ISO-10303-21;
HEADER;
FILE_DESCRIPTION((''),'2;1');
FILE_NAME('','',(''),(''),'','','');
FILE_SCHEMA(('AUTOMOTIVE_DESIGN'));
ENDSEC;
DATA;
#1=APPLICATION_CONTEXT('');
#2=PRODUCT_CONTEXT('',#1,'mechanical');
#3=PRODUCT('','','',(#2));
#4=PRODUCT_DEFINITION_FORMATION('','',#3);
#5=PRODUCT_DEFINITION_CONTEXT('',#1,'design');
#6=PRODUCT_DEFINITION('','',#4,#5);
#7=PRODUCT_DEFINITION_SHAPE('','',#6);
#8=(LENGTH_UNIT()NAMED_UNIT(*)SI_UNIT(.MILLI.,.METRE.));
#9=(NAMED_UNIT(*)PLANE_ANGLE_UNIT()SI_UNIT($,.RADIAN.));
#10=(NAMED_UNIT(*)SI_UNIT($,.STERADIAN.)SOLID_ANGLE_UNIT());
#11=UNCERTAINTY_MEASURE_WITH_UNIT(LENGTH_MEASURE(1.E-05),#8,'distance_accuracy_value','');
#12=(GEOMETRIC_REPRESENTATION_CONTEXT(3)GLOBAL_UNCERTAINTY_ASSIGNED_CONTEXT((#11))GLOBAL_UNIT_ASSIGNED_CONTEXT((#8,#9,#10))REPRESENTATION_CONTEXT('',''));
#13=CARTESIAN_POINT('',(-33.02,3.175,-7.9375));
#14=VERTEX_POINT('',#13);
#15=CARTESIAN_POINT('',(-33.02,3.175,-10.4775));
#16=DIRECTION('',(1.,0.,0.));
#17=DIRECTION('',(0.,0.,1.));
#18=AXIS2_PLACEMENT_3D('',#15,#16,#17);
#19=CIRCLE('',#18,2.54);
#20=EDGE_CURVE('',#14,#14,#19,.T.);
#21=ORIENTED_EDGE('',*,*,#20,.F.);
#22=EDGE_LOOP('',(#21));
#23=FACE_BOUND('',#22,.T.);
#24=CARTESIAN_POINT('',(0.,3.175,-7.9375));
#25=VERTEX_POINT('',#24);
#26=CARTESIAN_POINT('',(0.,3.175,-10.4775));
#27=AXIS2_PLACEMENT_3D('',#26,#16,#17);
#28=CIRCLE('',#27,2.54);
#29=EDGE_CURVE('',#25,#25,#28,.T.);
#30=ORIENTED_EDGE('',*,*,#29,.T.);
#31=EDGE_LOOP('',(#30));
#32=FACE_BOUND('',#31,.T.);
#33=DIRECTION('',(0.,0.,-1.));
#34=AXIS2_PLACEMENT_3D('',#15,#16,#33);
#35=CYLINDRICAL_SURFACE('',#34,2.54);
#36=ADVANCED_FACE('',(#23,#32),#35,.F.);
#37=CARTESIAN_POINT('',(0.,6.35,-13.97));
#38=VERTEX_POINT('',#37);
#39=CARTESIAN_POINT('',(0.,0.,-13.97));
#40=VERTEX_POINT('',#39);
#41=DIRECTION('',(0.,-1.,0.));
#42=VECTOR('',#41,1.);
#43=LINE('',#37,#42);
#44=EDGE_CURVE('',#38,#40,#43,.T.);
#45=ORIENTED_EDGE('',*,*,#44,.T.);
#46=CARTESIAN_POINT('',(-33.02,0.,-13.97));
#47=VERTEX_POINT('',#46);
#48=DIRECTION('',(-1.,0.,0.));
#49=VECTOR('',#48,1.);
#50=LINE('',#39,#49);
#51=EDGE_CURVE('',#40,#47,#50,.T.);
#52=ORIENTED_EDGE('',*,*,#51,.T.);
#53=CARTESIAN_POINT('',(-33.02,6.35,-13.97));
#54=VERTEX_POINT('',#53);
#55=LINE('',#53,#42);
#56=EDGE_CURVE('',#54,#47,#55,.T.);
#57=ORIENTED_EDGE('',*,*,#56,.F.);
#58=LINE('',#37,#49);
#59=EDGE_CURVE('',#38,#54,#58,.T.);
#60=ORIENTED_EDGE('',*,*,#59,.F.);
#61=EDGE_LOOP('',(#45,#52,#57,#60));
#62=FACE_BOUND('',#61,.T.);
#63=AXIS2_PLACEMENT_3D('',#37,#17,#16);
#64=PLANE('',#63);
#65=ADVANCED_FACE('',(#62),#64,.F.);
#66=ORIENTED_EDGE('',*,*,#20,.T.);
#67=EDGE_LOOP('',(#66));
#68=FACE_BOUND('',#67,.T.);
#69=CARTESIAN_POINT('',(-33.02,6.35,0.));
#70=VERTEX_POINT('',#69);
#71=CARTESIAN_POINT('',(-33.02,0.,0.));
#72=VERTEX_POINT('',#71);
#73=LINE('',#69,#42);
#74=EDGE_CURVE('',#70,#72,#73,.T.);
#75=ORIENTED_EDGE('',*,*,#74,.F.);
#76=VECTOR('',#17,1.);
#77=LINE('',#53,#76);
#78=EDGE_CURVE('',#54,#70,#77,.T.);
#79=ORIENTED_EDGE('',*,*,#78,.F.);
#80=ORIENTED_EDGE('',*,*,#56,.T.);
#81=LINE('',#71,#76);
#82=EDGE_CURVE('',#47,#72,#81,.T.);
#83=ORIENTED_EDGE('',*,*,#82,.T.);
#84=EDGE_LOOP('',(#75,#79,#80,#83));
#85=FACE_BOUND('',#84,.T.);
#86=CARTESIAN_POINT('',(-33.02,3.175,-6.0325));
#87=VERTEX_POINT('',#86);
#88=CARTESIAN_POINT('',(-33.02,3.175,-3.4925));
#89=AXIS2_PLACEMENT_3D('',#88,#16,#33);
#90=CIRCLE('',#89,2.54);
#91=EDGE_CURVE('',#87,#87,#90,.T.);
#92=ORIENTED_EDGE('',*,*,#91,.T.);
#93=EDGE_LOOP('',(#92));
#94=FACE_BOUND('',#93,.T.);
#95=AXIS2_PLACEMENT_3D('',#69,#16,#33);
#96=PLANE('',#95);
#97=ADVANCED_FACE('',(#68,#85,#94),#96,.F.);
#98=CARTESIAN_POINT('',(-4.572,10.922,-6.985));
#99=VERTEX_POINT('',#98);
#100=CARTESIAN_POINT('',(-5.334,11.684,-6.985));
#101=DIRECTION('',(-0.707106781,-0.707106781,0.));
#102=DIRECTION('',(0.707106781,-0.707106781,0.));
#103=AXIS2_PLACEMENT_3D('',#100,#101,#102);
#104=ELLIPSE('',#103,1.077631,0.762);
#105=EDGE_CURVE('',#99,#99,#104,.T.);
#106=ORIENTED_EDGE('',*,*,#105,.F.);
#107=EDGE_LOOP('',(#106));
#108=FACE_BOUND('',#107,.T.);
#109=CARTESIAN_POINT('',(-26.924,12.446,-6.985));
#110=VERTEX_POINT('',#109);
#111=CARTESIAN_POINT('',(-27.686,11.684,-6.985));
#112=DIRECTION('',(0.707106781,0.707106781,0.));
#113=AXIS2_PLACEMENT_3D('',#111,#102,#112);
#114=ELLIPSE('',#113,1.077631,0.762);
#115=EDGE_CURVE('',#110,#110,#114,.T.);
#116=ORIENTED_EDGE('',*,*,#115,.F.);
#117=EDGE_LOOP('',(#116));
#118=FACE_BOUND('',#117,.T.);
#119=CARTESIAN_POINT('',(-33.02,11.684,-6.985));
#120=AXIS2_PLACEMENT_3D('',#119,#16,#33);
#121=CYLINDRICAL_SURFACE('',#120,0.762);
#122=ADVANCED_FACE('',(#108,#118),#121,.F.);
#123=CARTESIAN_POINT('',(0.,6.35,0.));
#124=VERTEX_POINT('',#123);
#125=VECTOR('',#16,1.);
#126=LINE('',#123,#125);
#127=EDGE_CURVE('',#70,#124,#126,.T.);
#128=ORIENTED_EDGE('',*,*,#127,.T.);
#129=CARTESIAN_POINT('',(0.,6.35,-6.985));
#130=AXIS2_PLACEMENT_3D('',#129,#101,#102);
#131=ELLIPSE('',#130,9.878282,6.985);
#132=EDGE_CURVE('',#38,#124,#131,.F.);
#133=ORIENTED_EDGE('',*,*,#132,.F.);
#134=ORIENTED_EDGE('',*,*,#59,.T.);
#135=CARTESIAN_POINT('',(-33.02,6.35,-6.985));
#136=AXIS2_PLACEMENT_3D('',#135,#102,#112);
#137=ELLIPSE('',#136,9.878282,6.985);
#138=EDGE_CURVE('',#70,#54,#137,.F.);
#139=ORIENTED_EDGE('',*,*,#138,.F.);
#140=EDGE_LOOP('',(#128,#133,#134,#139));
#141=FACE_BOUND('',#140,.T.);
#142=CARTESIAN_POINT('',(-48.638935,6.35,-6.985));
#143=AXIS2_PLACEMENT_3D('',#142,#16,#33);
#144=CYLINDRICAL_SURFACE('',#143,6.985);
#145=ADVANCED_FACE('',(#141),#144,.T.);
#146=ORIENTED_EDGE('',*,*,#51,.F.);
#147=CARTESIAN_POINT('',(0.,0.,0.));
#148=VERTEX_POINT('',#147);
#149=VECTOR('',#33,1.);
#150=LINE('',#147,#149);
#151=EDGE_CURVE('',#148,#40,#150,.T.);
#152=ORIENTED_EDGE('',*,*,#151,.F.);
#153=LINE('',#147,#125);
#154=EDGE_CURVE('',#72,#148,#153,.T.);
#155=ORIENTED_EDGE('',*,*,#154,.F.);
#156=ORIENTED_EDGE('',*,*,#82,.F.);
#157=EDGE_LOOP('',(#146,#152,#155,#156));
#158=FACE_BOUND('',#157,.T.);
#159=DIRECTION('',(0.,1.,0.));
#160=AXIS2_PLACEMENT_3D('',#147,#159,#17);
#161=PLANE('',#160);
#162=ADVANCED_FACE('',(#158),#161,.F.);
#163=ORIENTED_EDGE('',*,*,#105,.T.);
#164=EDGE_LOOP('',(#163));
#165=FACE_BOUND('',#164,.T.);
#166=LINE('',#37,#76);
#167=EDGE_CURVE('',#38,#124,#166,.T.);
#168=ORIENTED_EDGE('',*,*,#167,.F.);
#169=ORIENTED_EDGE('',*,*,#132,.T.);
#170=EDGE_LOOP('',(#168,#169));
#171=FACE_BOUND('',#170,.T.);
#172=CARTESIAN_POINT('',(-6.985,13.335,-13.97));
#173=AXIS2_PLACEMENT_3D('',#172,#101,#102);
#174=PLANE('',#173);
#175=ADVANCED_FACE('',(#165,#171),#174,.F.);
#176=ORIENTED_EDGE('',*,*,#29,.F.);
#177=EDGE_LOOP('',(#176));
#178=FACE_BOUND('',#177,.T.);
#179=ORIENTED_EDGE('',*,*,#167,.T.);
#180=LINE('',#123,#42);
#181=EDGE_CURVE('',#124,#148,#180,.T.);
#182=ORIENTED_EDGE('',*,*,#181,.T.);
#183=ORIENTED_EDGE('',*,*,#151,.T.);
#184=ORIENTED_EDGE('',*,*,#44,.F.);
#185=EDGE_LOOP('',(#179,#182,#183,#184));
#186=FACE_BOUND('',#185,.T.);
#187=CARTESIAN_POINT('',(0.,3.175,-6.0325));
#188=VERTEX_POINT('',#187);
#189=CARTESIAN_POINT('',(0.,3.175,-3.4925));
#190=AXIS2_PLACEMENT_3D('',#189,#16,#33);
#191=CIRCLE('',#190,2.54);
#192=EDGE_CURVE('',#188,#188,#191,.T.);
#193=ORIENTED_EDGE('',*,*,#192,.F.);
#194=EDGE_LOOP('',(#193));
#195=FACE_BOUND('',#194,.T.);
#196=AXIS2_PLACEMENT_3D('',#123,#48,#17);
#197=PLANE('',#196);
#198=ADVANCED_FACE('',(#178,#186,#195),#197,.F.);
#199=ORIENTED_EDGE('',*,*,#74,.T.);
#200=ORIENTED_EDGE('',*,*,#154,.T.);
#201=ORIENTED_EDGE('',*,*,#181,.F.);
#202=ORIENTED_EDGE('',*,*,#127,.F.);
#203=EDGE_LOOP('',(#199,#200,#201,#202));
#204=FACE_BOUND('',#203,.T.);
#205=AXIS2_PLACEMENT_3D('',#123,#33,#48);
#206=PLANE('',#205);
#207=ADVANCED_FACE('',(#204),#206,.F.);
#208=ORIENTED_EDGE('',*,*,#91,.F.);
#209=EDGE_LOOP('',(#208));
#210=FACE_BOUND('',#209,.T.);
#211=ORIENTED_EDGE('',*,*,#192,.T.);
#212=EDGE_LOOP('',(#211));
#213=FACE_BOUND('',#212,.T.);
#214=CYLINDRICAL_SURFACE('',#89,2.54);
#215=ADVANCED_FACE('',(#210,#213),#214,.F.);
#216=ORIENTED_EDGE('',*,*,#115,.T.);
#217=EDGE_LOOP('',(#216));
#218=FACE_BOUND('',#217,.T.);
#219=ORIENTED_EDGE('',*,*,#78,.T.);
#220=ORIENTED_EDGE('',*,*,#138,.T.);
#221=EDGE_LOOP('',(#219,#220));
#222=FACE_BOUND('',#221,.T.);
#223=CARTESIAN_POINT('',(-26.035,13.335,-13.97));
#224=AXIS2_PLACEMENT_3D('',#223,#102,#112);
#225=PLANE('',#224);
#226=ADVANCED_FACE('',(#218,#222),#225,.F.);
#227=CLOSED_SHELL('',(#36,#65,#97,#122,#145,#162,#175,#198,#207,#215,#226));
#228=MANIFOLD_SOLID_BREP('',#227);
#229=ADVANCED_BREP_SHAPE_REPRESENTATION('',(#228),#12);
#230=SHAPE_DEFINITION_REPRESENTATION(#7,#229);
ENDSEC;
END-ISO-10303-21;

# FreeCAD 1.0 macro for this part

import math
import FreeCAD as App
import Part
import Sketcher
from FreeCAD import Vector
Q = App.Units.Quantity


def add_polygon(sketch, points):
    """Adds a closed chain of lines whose ends are joined by coincident constraints."""
    first, n = sketch.GeometryCount, len(points)
    for a, b in zip(points, points[1:] + points[:1]):
        sketch.addGeometry(Part.LineSegment(App.Vector(*a, 0), App.Vector(*b, 0)), False)
    for i in range(n):
        sketch.addConstraint(Sketcher.Constraint("Coincident", first + i, 2, first + (i + 1) % n, 1))

doc = App.newDocument("Part")
params = doc.addObject("Spreadsheet::Sheet", "Params")
for row, (alias, value) in enumerate([
    ("sketch1_width", "1.3 in"),
    ("sketch1_height", "0.55 in"),
    ("pad1_length", "0.25 in"),
    ("sketch2_radius", "0.275 in"),
    ("pad2_length", "1.3 in"),
    ("sketch3_width", "0.275 in"),
    ("sketch4_diameter", "0.06 in"),
    ("sketch5_diameter", "0.2 in"),
], start=1):
    params.set(f"A{row}", alias)
    params.set(f"B{row}", "=" + value)
    params.setAlias(f"B{row}", alias)

body = doc.addObject("PartDesign::Body", "Body")

# Sketch on XZ plane
sketch1 = body.newObject("Sketcher::SketchObject", "Sketch")
sketch1.AttachmentSupport = (doc.getObject("XZ_Plane"), [""])
sketch1.MapMode = "FlatFace"
add_polygon(sketch1, [(-33, -14), (-33, 0), (0, 0), (0, -14)])  # lines 0-3
sketch1.addConstraint([
    Sketcher.Constraint("Vertical", 0),
    Sketcher.Constraint("Horizontal", 1),
    Sketcher.Constraint("Vertical", 2),
    Sketcher.Constraint("Horizontal", 3),
    Sketcher.Constraint("Coincident", 1, 2, -1, 1),
    Sketcher.Constraint("DistanceX", 1, 1, 1, 2, Q("1.3 in")),
    Sketcher.Constraint("DistanceY", 0, 1, 0, 2, Q("0.55 in")),
])
sketch1.setExpression("Constraints[9]", "Params.sketch1_width")
sketch1.setExpression("Constraints[10]", "Params.sketch1_height")
pad1 = body.newObject("PartDesign::Pad", "Pad")
pad1.Profile = sketch1
pad1.setExpression("Length", "Params.pad1_length")
pad1.Reversed = True

# Sketch on YZ plane
sketch2 = body.newObject("Sketcher::SketchObject", "Sketch001")
sketch2.AttachmentSupport = (doc.getObject("YZ_Plane"), [""])
sketch2.MapMode = "FlatFace"
sketch2.addGeometry([
    Part.LineSegment(Vector(6, 0, 0), Vector(6, -14, 0)),
    Part.ArcOfCircle(Part.Circle(Vector(6, -7, 0), Vector(0, 0, 1), 7), math.radians(-90), math.radians(90)),
], False)
sketch2.addConstraint([
    Sketcher.Constraint("Coincident", 0, 1, 1, 2),
    Sketcher.Constraint("Coincident", 1, 1, 0, 2),
    Sketcher.Constraint("Vertical", 0),
    Sketcher.Constraint("PointOnObject", 0, 1, -1),
    Sketcher.Constraint("Vertical", 1, 3, 0, 1),
    Sketcher.Constraint("Radius", 1, Q("0.275 in")),
    Sketcher.Constraint("DistanceX", -1, 1, 1, 3, Q("0.25 in")),
])
sketch2.setExpression("Constraints[5]", "Params.sketch2_radius")
pad2 = body.newObject("PartDesign::Pad", "Pad001")
pad2.Profile = sketch2
pad2.setExpression("Length", "Params.pad2_length")
pad2.Reversed = True

# Sketch on XY plane
sketch3 = body.newObject("Sketcher::SketchObject", "Sketch002")
sketch3.AttachmentSupport = (doc.getObject("XY_Plane"), [""])
sketch3.MapMode = "FlatFace"
add_polygon(sketch3, [(0, 6), (0, 13), (-7, 13)])  # lines 0-2
add_polygon(sketch3, [(-33, 13), (-33, 6), (-26, 13)])  # lines 3-5
sketch3.addConstraint([
    Sketcher.Constraint("Vertical", 0),
    Sketcher.Constraint("Horizontal", 1),
    Sketcher.Constraint("Vertical", 3),
    Sketcher.Constraint("Horizontal", 5),
    Sketcher.Constraint("PointOnObject", 0, 2, -2),
    Sketcher.Constraint("Perpendicular", 2, 4),
    Sketcher.Constraint("Horizontal", 2, 2, 3, 2),
    Sketcher.Constraint("Horizontal", 1, 2, 4, 2),
    Sketcher.Constraint("Equal", 1, 5),
    Sketcher.Constraint("DistanceX", 3, 2, -1, 1, Q("1.3 in")),
    Sketcher.Constraint("DistanceX", 1, 2, 1, 1, Q("0.275 in")),
    Sketcher.Constraint("DistanceY", -1, 1, 2, 2, Q("0.25 in")),
])
sketch3.setExpression("Constraints[16]", "Params.sketch3_width")
pocket1 = body.newObject("PartDesign::Pocket", "Pocket")
pocket1.Profile = sketch3
pocket1.Type = "ThroughAll"

# Sketch on YZ plane
sketch4 = body.newObject("Sketcher::SketchObject", "Sketch003")
sketch4.AttachmentSupport = (doc.getObject("YZ_Plane"), [""])
sketch4.MapMode = "FlatFace"
sketch4.addGeometry(Part.Circle(Vector(11.7, -7, 0), Vector(0, 0, 1), 0.8), False)
sketch4.addConstraint([
    Sketcher.Constraint("Diameter", 0, Q("0.06 in")),
    Sketcher.Constraint("DistanceX", -1, 1, 0, 3, Q("0.46 in")),
    Sketcher.Constraint("DistanceY", 0, 3, -1, 1, Q("0.275 in")),
])
sketch4.setExpression("Constraints[0]", "Params.sketch4_diameter")
pocket2 = body.newObject("PartDesign::Pocket", "Pocket001")
pocket2.Profile = sketch4
pocket2.Type = "ThroughAll"

# Sketch on YZ plane
sketch5 = body.newObject("Sketcher::SketchObject", "Sketch004")
sketch5.AttachmentSupport = (doc.getObject("YZ_Plane"), [""])
sketch5.MapMode = "FlatFace"
sketch5.addGeometry([
    Part.Circle(Vector(3.2, -3.5, 0), Vector(0, 0, 1), 2.5),
    Part.Circle(Vector(3.2, -10.5, 0), Vector(0, 0, 1), 2.5),
], False)
sketch5.addConstraint([
    Sketcher.Constraint("Equal", 0, 1),
    Sketcher.Constraint("Vertical", 0, 3, 1, 3),
    Sketcher.Constraint("Diameter", 0, Q("0.2 in")),
    Sketcher.Constraint("DistanceX", -1, 1, 0, 3, Q("0.125 in")),
    Sketcher.Constraint("DistanceY", 1, 3, 0, 3, Q("0.275 in")),
    Sketcher.Constraint("DistanceY", 0, 3, -1, 1, Q("0.1375 in")),
])
sketch5.setExpression("Constraints[2]", "Params.sketch5_diameter")
pocket3 = body.newObject("PartDesign::Pocket", "Pocket002")
pocket3.Profile = sketch5
pocket3.Type = "ThroughAll"

doc.recompute()
